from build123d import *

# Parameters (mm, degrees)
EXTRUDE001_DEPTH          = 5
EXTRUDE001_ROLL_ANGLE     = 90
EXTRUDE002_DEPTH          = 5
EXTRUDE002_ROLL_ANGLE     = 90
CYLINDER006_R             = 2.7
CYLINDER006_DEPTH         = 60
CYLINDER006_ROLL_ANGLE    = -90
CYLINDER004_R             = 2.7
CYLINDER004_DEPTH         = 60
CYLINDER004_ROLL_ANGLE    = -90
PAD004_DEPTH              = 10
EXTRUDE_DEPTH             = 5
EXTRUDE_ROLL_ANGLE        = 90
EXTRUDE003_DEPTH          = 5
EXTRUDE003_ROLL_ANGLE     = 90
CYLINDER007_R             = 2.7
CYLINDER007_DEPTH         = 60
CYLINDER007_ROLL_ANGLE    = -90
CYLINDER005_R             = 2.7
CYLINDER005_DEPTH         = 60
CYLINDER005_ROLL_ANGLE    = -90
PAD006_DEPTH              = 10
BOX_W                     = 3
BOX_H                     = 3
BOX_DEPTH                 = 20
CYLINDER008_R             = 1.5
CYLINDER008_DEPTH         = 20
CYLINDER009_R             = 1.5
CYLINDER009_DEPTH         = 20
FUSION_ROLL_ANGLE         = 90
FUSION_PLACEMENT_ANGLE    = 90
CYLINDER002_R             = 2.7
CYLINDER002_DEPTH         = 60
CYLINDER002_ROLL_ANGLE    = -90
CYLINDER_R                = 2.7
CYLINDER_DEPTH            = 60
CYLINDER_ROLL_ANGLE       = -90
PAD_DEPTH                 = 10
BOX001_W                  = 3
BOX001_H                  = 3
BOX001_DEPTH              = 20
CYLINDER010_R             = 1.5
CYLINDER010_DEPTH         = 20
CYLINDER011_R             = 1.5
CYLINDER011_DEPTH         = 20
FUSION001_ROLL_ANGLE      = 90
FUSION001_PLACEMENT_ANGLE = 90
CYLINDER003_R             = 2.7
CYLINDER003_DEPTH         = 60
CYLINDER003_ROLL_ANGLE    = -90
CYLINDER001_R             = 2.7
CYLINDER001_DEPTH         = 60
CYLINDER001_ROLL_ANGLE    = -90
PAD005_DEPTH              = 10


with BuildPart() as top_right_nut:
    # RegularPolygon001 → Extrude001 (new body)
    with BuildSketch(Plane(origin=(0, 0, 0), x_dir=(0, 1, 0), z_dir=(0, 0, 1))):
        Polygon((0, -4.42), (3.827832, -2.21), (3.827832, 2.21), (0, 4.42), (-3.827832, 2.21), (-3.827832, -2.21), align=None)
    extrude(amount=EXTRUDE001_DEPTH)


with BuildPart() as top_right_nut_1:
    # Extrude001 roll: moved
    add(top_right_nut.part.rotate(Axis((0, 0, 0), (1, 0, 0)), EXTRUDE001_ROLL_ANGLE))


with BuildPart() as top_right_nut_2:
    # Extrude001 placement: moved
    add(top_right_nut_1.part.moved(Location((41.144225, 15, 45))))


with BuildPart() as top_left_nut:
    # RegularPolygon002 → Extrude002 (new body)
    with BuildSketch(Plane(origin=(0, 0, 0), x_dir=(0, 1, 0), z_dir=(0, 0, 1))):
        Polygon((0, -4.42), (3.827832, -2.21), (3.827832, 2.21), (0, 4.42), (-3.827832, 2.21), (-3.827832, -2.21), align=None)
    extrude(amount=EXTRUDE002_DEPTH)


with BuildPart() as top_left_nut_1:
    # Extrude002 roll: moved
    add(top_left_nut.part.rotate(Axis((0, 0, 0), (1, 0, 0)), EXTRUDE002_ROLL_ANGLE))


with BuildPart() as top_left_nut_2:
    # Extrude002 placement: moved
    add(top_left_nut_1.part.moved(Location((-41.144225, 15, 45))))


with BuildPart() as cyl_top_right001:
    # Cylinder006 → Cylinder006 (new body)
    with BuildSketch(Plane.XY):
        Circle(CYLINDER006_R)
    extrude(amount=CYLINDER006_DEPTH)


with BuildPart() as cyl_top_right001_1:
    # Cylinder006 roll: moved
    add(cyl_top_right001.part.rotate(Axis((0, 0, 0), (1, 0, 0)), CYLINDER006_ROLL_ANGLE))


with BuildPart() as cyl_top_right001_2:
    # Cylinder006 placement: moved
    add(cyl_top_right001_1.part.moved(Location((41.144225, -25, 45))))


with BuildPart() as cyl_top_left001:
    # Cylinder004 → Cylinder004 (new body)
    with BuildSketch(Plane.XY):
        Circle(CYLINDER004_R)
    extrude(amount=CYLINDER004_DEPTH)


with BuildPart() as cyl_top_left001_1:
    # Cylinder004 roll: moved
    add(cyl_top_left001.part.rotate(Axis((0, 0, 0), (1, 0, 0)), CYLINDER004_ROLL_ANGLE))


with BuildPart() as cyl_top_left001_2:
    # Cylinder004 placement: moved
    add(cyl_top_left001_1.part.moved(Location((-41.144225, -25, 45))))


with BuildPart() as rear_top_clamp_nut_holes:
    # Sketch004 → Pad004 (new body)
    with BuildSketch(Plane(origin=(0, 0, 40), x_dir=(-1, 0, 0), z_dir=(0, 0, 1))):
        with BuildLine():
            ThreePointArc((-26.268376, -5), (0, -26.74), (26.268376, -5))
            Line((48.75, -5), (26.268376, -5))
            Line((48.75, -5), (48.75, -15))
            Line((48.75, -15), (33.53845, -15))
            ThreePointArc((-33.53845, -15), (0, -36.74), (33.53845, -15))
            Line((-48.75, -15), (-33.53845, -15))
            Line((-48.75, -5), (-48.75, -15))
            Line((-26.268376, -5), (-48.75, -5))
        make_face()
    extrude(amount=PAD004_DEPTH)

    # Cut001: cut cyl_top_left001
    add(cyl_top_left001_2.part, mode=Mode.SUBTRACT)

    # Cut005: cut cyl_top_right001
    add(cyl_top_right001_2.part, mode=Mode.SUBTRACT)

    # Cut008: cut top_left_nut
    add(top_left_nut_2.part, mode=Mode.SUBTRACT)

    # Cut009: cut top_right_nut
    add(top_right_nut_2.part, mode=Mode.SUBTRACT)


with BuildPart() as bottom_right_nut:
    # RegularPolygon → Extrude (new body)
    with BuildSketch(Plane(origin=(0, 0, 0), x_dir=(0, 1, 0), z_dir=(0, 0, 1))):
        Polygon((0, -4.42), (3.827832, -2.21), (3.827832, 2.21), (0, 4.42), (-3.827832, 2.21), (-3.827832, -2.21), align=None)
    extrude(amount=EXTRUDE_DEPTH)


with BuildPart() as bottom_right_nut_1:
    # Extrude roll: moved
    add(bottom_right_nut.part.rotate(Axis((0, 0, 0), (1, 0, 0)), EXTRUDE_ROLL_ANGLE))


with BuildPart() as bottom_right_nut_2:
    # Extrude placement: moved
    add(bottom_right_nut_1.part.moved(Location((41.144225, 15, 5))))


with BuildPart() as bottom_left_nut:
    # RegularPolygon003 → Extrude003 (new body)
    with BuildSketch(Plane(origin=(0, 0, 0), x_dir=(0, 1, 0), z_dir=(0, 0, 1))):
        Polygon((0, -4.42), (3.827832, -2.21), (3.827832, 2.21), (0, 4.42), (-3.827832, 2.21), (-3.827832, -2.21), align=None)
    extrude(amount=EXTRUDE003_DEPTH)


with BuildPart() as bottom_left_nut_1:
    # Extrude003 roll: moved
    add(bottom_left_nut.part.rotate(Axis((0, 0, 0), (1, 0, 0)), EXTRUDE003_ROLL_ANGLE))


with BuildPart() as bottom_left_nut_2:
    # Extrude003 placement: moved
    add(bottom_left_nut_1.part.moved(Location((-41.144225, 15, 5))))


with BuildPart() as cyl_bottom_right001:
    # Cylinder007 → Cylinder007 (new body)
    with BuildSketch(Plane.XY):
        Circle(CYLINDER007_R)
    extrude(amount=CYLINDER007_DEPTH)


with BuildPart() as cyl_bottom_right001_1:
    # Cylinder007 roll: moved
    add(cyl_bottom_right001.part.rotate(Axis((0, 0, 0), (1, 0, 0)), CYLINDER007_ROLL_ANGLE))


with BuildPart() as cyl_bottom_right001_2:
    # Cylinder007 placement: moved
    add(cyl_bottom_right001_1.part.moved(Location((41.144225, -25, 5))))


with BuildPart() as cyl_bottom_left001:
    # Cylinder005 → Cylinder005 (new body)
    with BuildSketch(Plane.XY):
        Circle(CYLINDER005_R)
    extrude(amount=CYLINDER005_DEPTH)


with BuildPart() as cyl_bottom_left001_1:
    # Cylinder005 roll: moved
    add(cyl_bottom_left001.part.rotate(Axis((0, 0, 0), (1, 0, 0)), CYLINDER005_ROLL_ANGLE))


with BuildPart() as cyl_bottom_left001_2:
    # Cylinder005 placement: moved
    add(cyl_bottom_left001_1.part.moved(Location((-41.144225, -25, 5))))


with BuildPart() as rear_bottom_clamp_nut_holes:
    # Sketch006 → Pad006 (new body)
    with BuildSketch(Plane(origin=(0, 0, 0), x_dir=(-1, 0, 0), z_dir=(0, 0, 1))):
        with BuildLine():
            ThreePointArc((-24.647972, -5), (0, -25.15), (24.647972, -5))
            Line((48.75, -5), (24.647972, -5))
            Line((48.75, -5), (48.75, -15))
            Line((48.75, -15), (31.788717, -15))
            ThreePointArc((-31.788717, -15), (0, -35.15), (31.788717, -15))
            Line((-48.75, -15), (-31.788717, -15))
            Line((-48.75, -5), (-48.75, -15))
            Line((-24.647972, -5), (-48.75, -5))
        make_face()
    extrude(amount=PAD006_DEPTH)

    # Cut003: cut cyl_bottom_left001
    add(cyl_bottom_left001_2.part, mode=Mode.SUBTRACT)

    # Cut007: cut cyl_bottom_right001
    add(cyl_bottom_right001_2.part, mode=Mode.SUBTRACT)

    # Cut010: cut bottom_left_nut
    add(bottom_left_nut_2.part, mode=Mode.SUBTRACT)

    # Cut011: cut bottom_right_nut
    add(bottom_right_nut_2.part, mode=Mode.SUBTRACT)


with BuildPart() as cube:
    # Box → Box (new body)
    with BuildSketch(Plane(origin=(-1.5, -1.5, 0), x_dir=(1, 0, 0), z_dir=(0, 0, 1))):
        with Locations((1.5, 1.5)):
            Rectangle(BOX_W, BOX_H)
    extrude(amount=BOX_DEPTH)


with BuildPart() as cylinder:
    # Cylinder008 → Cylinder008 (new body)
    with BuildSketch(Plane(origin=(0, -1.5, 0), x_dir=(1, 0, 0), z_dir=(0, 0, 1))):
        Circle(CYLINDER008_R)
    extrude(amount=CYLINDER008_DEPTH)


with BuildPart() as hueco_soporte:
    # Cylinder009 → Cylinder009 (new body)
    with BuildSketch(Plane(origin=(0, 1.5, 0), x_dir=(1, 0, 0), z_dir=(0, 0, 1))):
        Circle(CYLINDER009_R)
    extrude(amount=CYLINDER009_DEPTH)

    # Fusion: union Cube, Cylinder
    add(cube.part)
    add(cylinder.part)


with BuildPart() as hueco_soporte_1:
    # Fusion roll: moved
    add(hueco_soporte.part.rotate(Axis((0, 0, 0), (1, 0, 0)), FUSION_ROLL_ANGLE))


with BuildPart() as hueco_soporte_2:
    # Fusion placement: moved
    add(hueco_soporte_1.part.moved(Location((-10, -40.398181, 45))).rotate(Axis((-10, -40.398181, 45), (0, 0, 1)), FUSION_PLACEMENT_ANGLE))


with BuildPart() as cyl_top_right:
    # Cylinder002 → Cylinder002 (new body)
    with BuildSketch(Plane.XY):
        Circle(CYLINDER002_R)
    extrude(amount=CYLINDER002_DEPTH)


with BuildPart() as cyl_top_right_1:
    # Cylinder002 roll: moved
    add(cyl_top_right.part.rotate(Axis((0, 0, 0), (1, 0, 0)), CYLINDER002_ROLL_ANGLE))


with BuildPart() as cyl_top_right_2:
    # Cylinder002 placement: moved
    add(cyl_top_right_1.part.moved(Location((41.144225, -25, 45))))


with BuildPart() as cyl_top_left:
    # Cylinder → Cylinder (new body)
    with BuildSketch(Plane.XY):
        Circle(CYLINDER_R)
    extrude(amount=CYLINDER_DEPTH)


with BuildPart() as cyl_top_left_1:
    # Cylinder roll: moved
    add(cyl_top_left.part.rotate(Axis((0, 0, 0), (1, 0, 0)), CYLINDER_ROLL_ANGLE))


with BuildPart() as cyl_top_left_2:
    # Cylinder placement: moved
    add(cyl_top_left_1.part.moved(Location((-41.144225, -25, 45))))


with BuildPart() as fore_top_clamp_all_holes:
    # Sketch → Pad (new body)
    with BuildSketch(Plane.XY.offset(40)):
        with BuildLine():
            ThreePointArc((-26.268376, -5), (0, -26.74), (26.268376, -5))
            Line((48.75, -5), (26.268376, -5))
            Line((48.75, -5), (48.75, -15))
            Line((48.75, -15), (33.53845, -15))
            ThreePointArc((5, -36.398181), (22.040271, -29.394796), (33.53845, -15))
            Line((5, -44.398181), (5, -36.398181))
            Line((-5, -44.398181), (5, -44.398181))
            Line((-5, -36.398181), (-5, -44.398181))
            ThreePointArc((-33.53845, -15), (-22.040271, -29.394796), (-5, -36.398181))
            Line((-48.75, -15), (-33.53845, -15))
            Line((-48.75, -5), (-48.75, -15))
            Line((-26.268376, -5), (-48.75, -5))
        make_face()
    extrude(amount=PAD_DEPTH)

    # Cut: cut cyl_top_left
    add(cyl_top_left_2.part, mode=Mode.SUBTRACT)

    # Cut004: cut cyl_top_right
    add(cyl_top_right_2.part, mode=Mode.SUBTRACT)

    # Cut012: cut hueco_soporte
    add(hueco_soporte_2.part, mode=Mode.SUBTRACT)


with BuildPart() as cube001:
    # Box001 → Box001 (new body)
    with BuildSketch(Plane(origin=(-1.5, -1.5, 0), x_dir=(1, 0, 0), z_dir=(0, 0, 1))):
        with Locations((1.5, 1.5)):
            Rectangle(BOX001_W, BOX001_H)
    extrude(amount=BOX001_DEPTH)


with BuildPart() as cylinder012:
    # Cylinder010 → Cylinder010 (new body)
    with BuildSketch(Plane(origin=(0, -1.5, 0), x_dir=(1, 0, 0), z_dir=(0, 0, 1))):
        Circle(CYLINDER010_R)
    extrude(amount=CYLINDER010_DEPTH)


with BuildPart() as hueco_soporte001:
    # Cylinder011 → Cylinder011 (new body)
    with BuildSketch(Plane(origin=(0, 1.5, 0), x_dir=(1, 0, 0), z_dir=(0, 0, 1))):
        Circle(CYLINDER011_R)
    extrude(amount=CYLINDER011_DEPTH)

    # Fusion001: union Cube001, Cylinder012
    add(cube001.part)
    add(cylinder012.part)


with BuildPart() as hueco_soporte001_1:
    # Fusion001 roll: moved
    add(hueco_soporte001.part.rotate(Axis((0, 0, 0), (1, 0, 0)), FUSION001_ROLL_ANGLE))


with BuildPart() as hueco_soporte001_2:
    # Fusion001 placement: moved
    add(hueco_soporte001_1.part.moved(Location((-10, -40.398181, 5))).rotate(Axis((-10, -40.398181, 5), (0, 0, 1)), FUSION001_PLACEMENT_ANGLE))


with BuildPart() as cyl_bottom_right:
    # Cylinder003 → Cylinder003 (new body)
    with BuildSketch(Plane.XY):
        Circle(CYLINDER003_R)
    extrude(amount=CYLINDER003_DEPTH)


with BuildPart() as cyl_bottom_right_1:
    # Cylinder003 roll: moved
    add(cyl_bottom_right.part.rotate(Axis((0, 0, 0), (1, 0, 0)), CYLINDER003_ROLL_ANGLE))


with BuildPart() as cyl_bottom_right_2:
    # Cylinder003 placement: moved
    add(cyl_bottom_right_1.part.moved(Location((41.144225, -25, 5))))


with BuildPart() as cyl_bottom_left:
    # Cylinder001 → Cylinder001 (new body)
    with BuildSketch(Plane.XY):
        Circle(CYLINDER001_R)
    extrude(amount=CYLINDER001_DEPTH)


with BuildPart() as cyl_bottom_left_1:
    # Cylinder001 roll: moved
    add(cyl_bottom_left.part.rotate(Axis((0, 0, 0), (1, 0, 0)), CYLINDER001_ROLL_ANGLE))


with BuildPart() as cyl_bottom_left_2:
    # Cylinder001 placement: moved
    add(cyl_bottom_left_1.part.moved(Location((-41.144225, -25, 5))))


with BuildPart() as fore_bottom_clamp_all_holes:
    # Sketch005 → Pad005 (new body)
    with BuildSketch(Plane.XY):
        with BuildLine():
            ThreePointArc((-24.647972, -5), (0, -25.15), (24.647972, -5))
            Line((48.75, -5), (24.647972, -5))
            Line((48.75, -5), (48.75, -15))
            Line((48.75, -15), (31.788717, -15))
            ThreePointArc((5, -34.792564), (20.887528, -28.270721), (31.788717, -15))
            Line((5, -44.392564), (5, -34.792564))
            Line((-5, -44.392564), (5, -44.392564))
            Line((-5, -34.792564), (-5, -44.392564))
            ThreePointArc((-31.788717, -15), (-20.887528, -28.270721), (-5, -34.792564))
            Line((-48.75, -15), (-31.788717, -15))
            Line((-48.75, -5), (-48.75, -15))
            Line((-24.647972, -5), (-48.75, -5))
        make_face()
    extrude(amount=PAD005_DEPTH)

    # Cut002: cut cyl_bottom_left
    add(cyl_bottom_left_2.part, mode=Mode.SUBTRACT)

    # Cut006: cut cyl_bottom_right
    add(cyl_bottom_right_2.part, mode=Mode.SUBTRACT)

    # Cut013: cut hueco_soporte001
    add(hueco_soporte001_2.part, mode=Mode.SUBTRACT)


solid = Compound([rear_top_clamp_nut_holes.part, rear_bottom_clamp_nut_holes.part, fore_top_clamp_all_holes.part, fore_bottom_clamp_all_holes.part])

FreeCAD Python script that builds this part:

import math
import FreeCAD as App
import Part
import Sketcher

V = App.Vector
Q = App.Units.Quantity


def add_polygon(sketch, points):
    """Adds a closed chain of lines whose ends are joined by coincident constraints."""
    first, n = sketch.GeometryCount, len(points)
    for a, b in zip(points, points[1:] + points[:1]):
        sketch.addGeometry(Part.LineSegment(App.Vector(*a, 0), App.Vector(*b, 0)), False)
    for i in range(n):
        sketch.addConstraint(Sketcher.Constraint("Coincident", first + i, 2, first + (i + 1) % n, 1))

doc = App.newDocument("Part")
body = doc.addObject("PartDesign::Body", "Body")

# Sketch on XY plane
sketch1 = body.newObject("Sketcher::SketchObject", "Sketch")
sketch1.AttachmentSupport = (doc.getObject("XY_Plane"), [""])
sketch1.MapMode = "FlatFace"
add_polygon(sketch1, [(4.42, 0), (2.21, 3.827832), (-2.21, 3.827832), (-4.42, 0), (-2.21, -3.827832), (2.21, -3.827832)])  # lines 0-5
sketch1.addConstraint([
    Sketcher.Constraint("Horizontal", 1),
    Sketcher.Constraint("Horizontal", 4),
    Sketcher.Constraint("Symmetric", 0, 2, 3, 2, -1, 1),
    Sketcher.Constraint("Symmetric", 2, 2, 5, 2, -1, 1),
    Sketcher.Constraint("PointOnObject", 2, 2, -1),
    Sketcher.Constraint("Parallel", 2, 5),
    Sketcher.Constraint("Vertical", 1, 2, 3, 2),
    Sketcher.Constraint("Angle", 0, Q("120.000002 deg")),
    Sketcher.Constraint("DistanceX", 1, 2, 1, 1, Q("4.42 mm")),
    Sketcher.Constraint("Distance", 0, Q("4.42 mm")),
])
pad1 = body.newObject("PartDesign::Pad", "Pad")
pad1.Profile = sketch1
pad1.Length = 5
body2 = doc.addObject("PartDesign::Body", "Body001")
doc.recompute()

body.Placement = App.Placement(V(0, 0, 0), App.Rotation(V(1, 0, 0), 90))
boolean = body2.newObject("PartDesign::Boolean", "Boolean")
boolean.Type = "Fuse"
boolean.addObjects([body])
body3 = doc.addObject("PartDesign::Body", "Body002")
doc.recompute()

body2.Placement = App.Placement(V(41.144225, 15, 45), App.Rotation(V(0, 0, 1), 0))
boolean2 = body3.newObject("PartDesign::Boolean", "Boolean001")
boolean2.Type = "Fuse"
boolean2.addObjects([body2])
body4 = doc.addObject("PartDesign::Body", "Body003")

# Sketch on XY plane
sketch2 = body4.newObject("Sketcher::SketchObject", "Sketch001")
sketch2.AttachmentSupport = (doc.getObject("XY_Plane003"), [""])
sketch2.MapMode = "FlatFace"
add_polygon(sketch2, [(4.42, 0), (2.21, 3.827832), (-2.21, 3.827832), (-4.42, 0), (-2.21, -3.827832), (2.21, -3.827832)])  # lines 0-5
sketch2.addConstraint([
    Sketcher.Constraint("Horizontal", 1),
    Sketcher.Constraint("Horizontal", 4),
    Sketcher.Constraint("Symmetric", 0, 2, 3, 2, -1, 1),
    Sketcher.Constraint("Symmetric", 2, 2, 5, 2, -1, 1),
    Sketcher.Constraint("PointOnObject", 2, 2, -1),
    Sketcher.Constraint("Parallel", 2, 5),
    Sketcher.Constraint("Vertical", 1, 2, 3, 2),
    Sketcher.Constraint("Angle", 0, Q("120.000002 deg")),
    Sketcher.Constraint("DistanceX", 1, 2, 1, 1, Q("4.42 mm")),
    Sketcher.Constraint("Distance", 0, Q("4.42 mm")),
])
pad2 = body4.newObject("PartDesign::Pad", "Pad001")
pad2.Profile = sketch2
pad2.Length = 5
body5 = doc.addObject("PartDesign::Body", "Body004")
doc.recompute()

body4.Placement = App.Placement(V(0, 0, 0), App.Rotation(V(1, 0, 0), 90))
boolean3 = body5.newObject("PartDesign::Boolean", "Boolean002")
boolean3.Type = "Fuse"
boolean3.addObjects([body4])
body6 = doc.addObject("PartDesign::Body", "Body005")
doc.recompute()

body5.Placement = App.Placement(V(-41.144225, 15, 45), App.Rotation(V(0, 0, 1), 0))
boolean4 = body6.newObject("PartDesign::Boolean", "Boolean003")
boolean4.Type = "Fuse"
boolean4.addObjects([body5])
body7 = doc.addObject("PartDesign::Body", "Body006")

# Sketch on XY plane
sketch3 = body7.newObject("Sketcher::SketchObject", "Sketch002")
sketch3.AttachmentSupport = (doc.getObject("XY_Plane006"), [""])
sketch3.MapMode = "FlatFace"
sketch3.addGeometry(Part.Circle(V(0, 0, 0), V(0, 0, 1), 2.7), False)
sketch3.addConstraint([
    Sketcher.Constraint("Coincident", 0, 3, -1, 1),
    Sketcher.Constraint("Diameter", 0, Q("5.4 mm")),
])
pad3 = body7.newObject("PartDesign::Pad", "Pad002")
pad3.Profile = sketch3
pad3.Length = 60
body8 = doc.addObject("PartDesign::Body", "Body007")
doc.recompute()

body7.Placement = App.Placement(V(0, 0, 0), App.Rotation(V(1, 0, 0), 270))
boolean5 = body8.newObject("PartDesign::Boolean", "Boolean004")
boolean5.Type = "Fuse"
boolean5.addObjects([body7])
body9 = doc.addObject("PartDesign::Body", "Body008")
doc.recompute()

body8.Placement = App.Placement(V(41.144225, -25, 45), App.Rotation(V(0, 0, 1), 0))
boolean6 = body9.newObject("PartDesign::Boolean", "Boolean005")
boolean6.Type = "Fuse"
boolean6.addObjects([body8])
body10 = doc.addObject("PartDesign::Body", "Body009")

# Sketch on XY plane
sketch4 = body10.newObject("Sketcher::SketchObject", "Sketch003")
sketch4.AttachmentSupport = (doc.getObject("XY_Plane009"), [""])
sketch4.MapMode = "FlatFace"
sketch4.addGeometry(Part.Circle(V(0, 0, 0), V(0, 0, 1), 2.7), False)
sketch4.addConstraint([
    Sketcher.Constraint("Coincident", 0, 3, -1, 1),
    Sketcher.Constraint("Diameter", 0, Q("5.4 mm")),
])
pad4 = body10.newObject("PartDesign::Pad", "Pad003")
pad4.Profile = sketch4
pad4.Length = 60
body11 = doc.addObject("PartDesign::Body", "Body010")
doc.recompute()

body10.Placement = App.Placement(V(0, 0, 0), App.Rotation(V(1, 0, 0), 270))
boolean7 = body11.newObject("PartDesign::Boolean", "Boolean006")
boolean7.Type = "Fuse"
boolean7.addObjects([body10])
body12 = doc.addObject("PartDesign::Body", "Body011")
doc.recompute()

body11.Placement = App.Placement(V(-41.144225, -25, 45), App.Rotation(V(0, 0, 1), 0))
boolean8 = body12.newObject("PartDesign::Boolean", "Boolean007")
boolean8.Type = "Fuse"
boolean8.addObjects([body11])
body13 = doc.addObject("PartDesign::Body", "Body012")

# Sketch on XY plane
sketch5 = body13.newObject("Sketcher::SketchObject", "Sketch004")
sketch5.AttachmentSupport = (doc.getObject("XY_Plane012"), [""])
sketch5.MapMode = "FlatFace"
sketch5.AttachmentOffset = App.Placement(V(0, 0, 40), App.Rotation())
sketch5.addGeometry([
    Part.ArcOfCircle(Part.Circle(V(0, 0.000001, 0), V(0, 0, 1), 26.739999), math.radians(10.776929), math.radians(169.223071)),  # 0
    Part.LineSegment(V(26.268376, 5, 0), V(48.75, 5, 0)),  # 1
    Part.LineSegment(V(48.75, 5, 0), V(48.75, 15, 0)),  # 2
    Part.LineSegment(V(48.75, 15, 0), V(33.53845, 15, 0)),  # 3
    Part.ArcOfCircle(Part.Circle(V(0, -0.000001, 0), V(0, 0, 1), 36.740001), math.radians(24.096479), math.radians(155.903521)),  # 4
    Part.LineSegment(V(-33.53845, 15, 0), V(-48.75, 15, 0)),  # 5
    Part.LineSegment(V(-48.75, 15, 0), V(-48.75, 5, 0)),  # 6
    Part.LineSegment(V(-48.75, 5, 0), V(-26.268376, 5, 0)),  # 7
], False)
sketch5.addConstraint([
    Sketcher.Constraint("Coincident", 0, 1, 1, 1),
    Sketcher.Constraint("Coincident", 1, 2, 2, 1),
    Sketcher.Constraint("Coincident", 2, 2, 3, 1),
    Sketcher.Constraint("Coincident", 3, 2, 4, 1),
    Sketcher.Constraint("Coincident", 4, 2, 5, 1),
    Sketcher.Constraint("Coincident", 5, 2, 6, 1),
    Sketcher.Constraint("Coincident", 6, 2, 7, 1),
    Sketcher.Constraint("Coincident", 7, 2, 0, 2),
    Sketcher.Constraint("Horizontal", 1),
    Sketcher.Constraint("Vertical", 2),
    Sketcher.Constraint("Horizontal", 3),
    Sketcher.Constraint("Horizontal", 5),
    Sketcher.Constraint("Vertical", 6),
    Sketcher.Constraint("Horizontal", 7),
    Sketcher.Constraint("Coincident", 0, 3, -1, 1),
    Sketcher.Constraint("Coincident", 4, 3, -1, 1),
    Sketcher.Constraint("Symmetric", 2, 2, 5, 2, -2),
    Sketcher.Constraint("Horizontal", 1, 2, 6, 2),
    Sketcher.Constraint("DistanceY", 2, 1, 2, 2, Q("10 mm")),
    Sketcher.Constraint("Radius", 0, Q("26.739999 mm")),
    Sketcher.Constraint("Radius", 4, Q("36.740001 mm")),
    Sketcher.Constraint("DistanceY", -1, 1, 0, 1, Q("5 mm")),
    Sketcher.Constraint("DistanceX", -1, 1, 1, 2, Q("48.75 mm")),
])
pad5 = body13.newObject("PartDesign::Pad", "Pad004")
pad5.Profile = sketch5
pad5.Length = 10
doc.recompute()

boolean9 = body13.newObject("PartDesign::Boolean", "Boolean008")
boolean9.Type = "Cut"
boolean9.addObjects([body12])
doc.recompute()

boolean10 = body13.newObject("PartDesign::Boolean", "Boolean009")
boolean10.Type = "Cut"
boolean10.addObjects([body9])
doc.recompute()

boolean11 = body13.newObject("PartDesign::Boolean", "Boolean010")
boolean11.Type = "Cut"
boolean11.addObjects([body6])
doc.recompute()

boolean12 = body13.newObject("PartDesign::Boolean", "Boolean011")
boolean12.Type = "Cut"
boolean12.addObjects([body3])
body14 = doc.addObject("PartDesign::Body", "Body013")

# Sketch on XY plane
sketch6 = body14.newObject("Sketcher::SketchObject", "Sketch005")
sketch6.AttachmentSupport = (doc.getObject("XY_Plane013"), [""])
sketch6.MapMode = "FlatFace"
add_polygon(sketch6, [(4.42, 0), (2.21, 3.827832), (-2.21, 3.827832), (-4.42, 0), (-2.21, -3.827832), (2.21, -3.827832)])  # lines 0-5
sketch6.addConstraint([
    Sketcher.Constraint("Horizontal", 1),
    Sketcher.Constraint("Horizontal", 4),
    Sketcher.Constraint("Symmetric", 0, 2, 3, 2, -1, 1),
    Sketcher.Constraint("Symmetric", 2, 2, 5, 2, -1, 1),
    Sketcher.Constraint("PointOnObject", 2, 2, -1),
    Sketcher.Constraint("Parallel", 2, 5),
    Sketcher.Constraint("Vertical", 1, 2, 3, 2),
    Sketcher.Constraint("Angle", 0, Q("120.000002 deg")),
    Sketcher.Constraint("DistanceX", 1, 2, 1, 1, Q("4.42 mm")),
    Sketcher.Constraint("Distance", 0, Q("4.42 mm")),
])
pad6 = body14.newObject("PartDesign::Pad", "Pad005")
pad6.Profile = sketch6
pad6.Length = 5
body15 = doc.addObject("PartDesign::Body", "Body014")
doc.recompute()

body14.Placement = App.Placement(V(0, 0, 0), App.Rotation(V(1, 0, 0), 90))
boolean13 = body15.newObject("PartDesign::Boolean", "Boolean012")
boolean13.Type = "Fuse"
boolean13.addObjects([body14])
body16 = doc.addObject("PartDesign::Body", "Body015")
doc.recompute()

body15.Placement = App.Placement(V(41.144225, 15, 5), App.Rotation(V(0, 0, 1), 0))
boolean14 = body16.newObject("PartDesign::Boolean", "Boolean013")
boolean14.Type = "Fuse"
boolean14.addObjects([body15])
body17 = doc.addObject("PartDesign::Body", "Body016")

# Sketch on XY plane
sketch7 = body17.newObject("Sketcher::SketchObject", "Sketch006")
sketch7.AttachmentSupport = (doc.getObject("XY_Plane016"), [""])
sketch7.MapMode = "FlatFace"
add_polygon(sketch7, [(4.42, 0), (2.21, 3.827832), (-2.21, 3.827832), (-4.42, 0), (-2.21, -3.827832), (2.21, -3.827832)])  # lines 0-5
sketch7.addConstraint([
    Sketcher.Constraint("Horizontal", 1),
    Sketcher.Constraint("Horizontal", 4),
    Sketcher.Constraint("Symmetric", 0, 2, 3, 2, -1, 1),
    Sketcher.Constraint("Symmetric", 2, 2, 5, 2, -1, 1),
    Sketcher.Constraint("PointOnObject", 2, 2, -1),
    Sketcher.Constraint("Parallel", 2, 5),
    Sketcher.Constraint("Vertical", 1, 2, 3, 2),
    Sketcher.Constraint("Angle", 0, Q("120.000002 deg")),
    Sketcher.Constraint("DistanceX", 1, 2, 1, 1, Q("4.42 mm")),
    Sketcher.Constraint("Distance", 0, Q("4.42 mm")),
])
pad7 = body17.newObject("PartDesign::Pad", "Pad006")
pad7.Profile = sketch7
pad7.Length = 5
body18 = doc.addObject("PartDesign::Body", "Body017")
doc.recompute()

body17.Placement = App.Placement(V(0, 0, 0), App.Rotation(V(1, 0, 0), 90))
boolean15 = body18.newObject("PartDesign::Boolean", "Boolean014")
boolean15.Type = "Fuse"
boolean15.addObjects([body17])
body19 = doc.addObject("PartDesign::Body", "Body018")
doc.recompute()

body18.Placement = App.Placement(V(-41.144225, 15, 5), App.Rotation(V(0, 0, 1), 0))
boolean16 = body19.newObject("PartDesign::Boolean", "Boolean015")
boolean16.Type = "Fuse"
boolean16.addObjects([body18])
body20 = doc.addObject("PartDesign::Body", "Body019")

# Sketch on XY plane
sketch8 = body20.newObject("Sketcher::SketchObject", "Sketch007")
sketch8.AttachmentSupport = (doc.getObject("XY_Plane019"), [""])
sketch8.MapMode = "FlatFace"
sketch8.addGeometry(Part.Circle(V(0, 0, 0), V(0, 0, 1), 2.7), False)
sketch8.addConstraint([
    Sketcher.Constraint("Coincident", 0, 3, -1, 1),
    Sketcher.Constraint("Diameter", 0, Q("5.4 mm")),
])
pad8 = body20.newObject("PartDesign::Pad", "Pad007")
pad8.Profile = sketch8
pad8.Length = 60
body21 = doc.addObject("PartDesign::Body", "Body020")
doc.recompute()

body20.Placement = App.Placement(V(0, 0, 0), App.Rotation(V(1, 0, 0), 270))
boolean17 = body21.newObject("PartDesign::Boolean", "Boolean016")
boolean17.Type = "Fuse"
boolean17.addObjects([body20])
body22 = doc.addObject("PartDesign::Body", "Body021")
doc.recompute()

body21.Placement = App.Placement(V(41.144225, -25, 5), App.Rotation(V(0, 0, 1), 0))
boolean18 = body22.newObject("PartDesign::Boolean", "Boolean017")
boolean18.Type = "Fuse"
boolean18.addObjects([body21])
body23 = doc.addObject("PartDesign::Body", "Body022")

# Sketch on XY plane
sketch9 = body23.newObject("Sketcher::SketchObject", "Sketch008")
sketch9.AttachmentSupport = (doc.getObject("XY_Plane022"), [""])
sketch9.MapMode = "FlatFace"
sketch9.addGeometry(Part.Circle(V(0, 0, 0), V(0, 0, 1), 2.7), False)
sketch9.addConstraint([
    Sketcher.Constraint("Coincident", 0, 3, -1, 1),
    Sketcher.Constraint("Diameter", 0, Q("5.4 mm")),
])
pad9 = body23.newObject("PartDesign::Pad", "Pad008")
pad9.Profile = sketch9
pad9.Length = 60
body24 = doc.addObject("PartDesign::Body", "Body023")
doc.recompute()

body23.Placement = App.Placement(V(0, 0, 0), App.Rotation(V(1, 0, 0), 270))
boolean19 = body24.newObject("PartDesign::Boolean", "Boolean018")
boolean19.Type = "Fuse"
boolean19.addObjects([body23])
body25 = doc.addObject("PartDesign::Body", "Body024")
doc.recompute()

body24.Placement = App.Placement(V(-41.144225, -25, 5), App.Rotation(V(0, 0, 1), 0))
boolean20 = body25.newObject("PartDesign::Boolean", "Boolean019")
boolean20.Type = "Fuse"
boolean20.addObjects([body24])
body26 = doc.addObject("PartDesign::Body", "Body025")

# Sketch on XY plane
sketch10 = body26.newObject("Sketcher::SketchObject", "Sketch009")
sketch10.AttachmentSupport = (doc.getObject("XY_Plane025"), [""])
sketch10.MapMode = "FlatFace"
sketch10.addGeometry([
    Part.ArcOfCircle(Part.Circle(V(0, -0.000001, 0), V(0, 0, 1), 25.150001), math.radians(11.467215), math.radians(168.532785)),  # 0
    Part.LineSegment(V(24.647972, 5, 0), V(48.75, 5, 0)),  # 1
    Part.LineSegment(V(48.75, 5, 0), V(48.75, 15, 0)),  # 2
    Part.LineSegment(V(48.75, 15, 0), V(31.788717, 15, 0)),  # 3
    Part.ArcOfCircle(Part.Circle(V(0, -0.000001, 0), V(0, 0, 1), 35.150001), math.radians(25.261011), math.radians(154.738989)),  # 4
    Part.LineSegment(V(-31.788717, 15, 0), V(-48.75, 15, 0)),  # 5
    Part.LineSegment(V(-48.75, 15, 0), V(-48.75, 5, 0)),  # 6
    Part.LineSegment(V(-48.75, 5, 0), V(-24.647972, 5, 0)),  # 7
], False)
sketch10.addConstraint([
    Sketcher.Constraint("Coincident", 0, 1, 1, 1),
    Sketcher.Constraint("Coincident", 1, 2, 2, 1),
    Sketcher.Constraint("Coincident", 2, 2, 3, 1),
    Sketcher.Constraint("Coincident", 3, 2, 4, 1),
    Sketcher.Constraint("Coincident", 4, 2, 5, 1),
    Sketcher.Constraint("Coincident", 5, 2, 6, 1),
    Sketcher.Constraint("Coincident", 6, 2, 7, 1),
    Sketcher.Constraint("Coincident", 7, 2, 0, 2),
    Sketcher.Constraint("Horizontal", 1),
    Sketcher.Constraint("Vertical", 2),
    Sketcher.Constraint("Horizontal", 3),
    Sketcher.Constraint("Horizontal", 5),
    Sketcher.Constraint("Vertical", 6),
    Sketcher.Constraint("Horizontal", 7),
    Sketcher.Constraint("Coincident", 0, 3, -1, 1),
    Sketcher.Constraint("Coincident", 4, 3, -1, 1),
    Sketcher.Constraint("Symmetric", 2, 2, 5, 2, -2),
    Sketcher.Constraint("Horizontal", 1, 2, 6, 2),
    Sketcher.Constraint("DistanceY", 2, 1, 2, 2, Q("10 mm")),
    Sketcher.Constraint("Radius", 0, Q("25.150001 mm")),
    Sketcher.Constraint("Radius", 4, Q("35.150001 mm")),
    Sketcher.Constraint("DistanceY", -1, 1, 0, 1, Q("5 mm")),
    Sketcher.Constraint("DistanceX", -1, 1, 1, 2, Q("48.75 mm")),
])
pad10 = body26.newObject("PartDesign::Pad", "Pad009")
pad10.Profile = sketch10
pad10.Length = 10
doc.recompute()

boolean21 = body26.newObject("PartDesign::Boolean", "Boolean020")
boolean21.Type = "Cut"
boolean21.addObjects([body25])
doc.recompute()

boolean22 = body26.newObject("PartDesign::Boolean", "Boolean021")
boolean22.Type = "Cut"
boolean22.addObjects([body22])
doc.recompute()

boolean23 = body26.newObject("PartDesign::Boolean", "Boolean022")
boolean23.Type = "Cut"
boolean23.addObjects([body19])
doc.recompute()

boolean24 = body26.newObject("PartDesign::Boolean", "Boolean023")
boolean24.Type = "Cut"
boolean24.addObjects([body16])
body27 = doc.addObject("PartDesign::Body", "Body026")

# Sketch on XY plane
sketch11 = body27.newObject("Sketcher::SketchObject", "Sketch010")
sketch11.AttachmentSupport = (doc.getObject("XY_Plane026"), [""])
sketch11.MapMode = "FlatFace"
add_polygon(sketch11, [(-1.5, 1.5), (-1.5, -1.5), (1.5, -1.5), (1.5, 1.5)])  # lines 0-3
sketch11.addConstraint([
    Sketcher.Constraint("Vertical", 0),
    Sketcher.Constraint("Horizontal", 1),
    Sketcher.Constraint("Vertical", 2),
    Sketcher.Constraint("Horizontal", 3),
    Sketcher.Constraint("Symmetric", 0, 2, 2, 2, -1, 1),
    Sketcher.Constraint("Equal", 3, 0),
    Sketcher.Constraint("DistanceX", 1, 1, 1, 2, Q("3 mm")),
])
pad11 = body27.newObject("PartDesign::Pad", "Pad010")
pad11.Profile = sketch11
pad11.Length = 20
body28 = doc.addObject("PartDesign::Body", "Body027")

# Sketch on XY plane
sketch12 = body28.newObject("Sketcher::SketchObject", "Sketch011")
sketch12.AttachmentSupport = (doc.getObject("XY_Plane027"), [""])
sketch12.MapMode = "FlatFace"
sketch12.addGeometry(Part.Circle(V(0, -1.5, 0), V(0, 0, 1), 1.5), False)
sketch12.addConstraint([
    Sketcher.Constraint("PointOnObject", 0, 3, -2),
    Sketcher.Constraint("Diameter", 0, Q("3 mm")),
    Sketcher.Constraint("DistanceY", 0, 3, -1, 1, Q("1.5 mm")),
])
pad12 = body28.newObject("PartDesign::Pad", "Pad011")
pad12.Profile = sketch12
pad12.Length = 20
body29 = doc.addObject("PartDesign::Body", "Body028")

# Sketch on XY plane
sketch13 = body29.newObject("Sketcher::SketchObject", "Sketch012")
sketch13.AttachmentSupport = (doc.getObject("XY_Plane028"), [""])
sketch13.MapMode = "FlatFace"
sketch13.addGeometry(Part.Circle(V(0, 1.5, 0), V(0, 0, 1), 1.5), False)
sketch13.addConstraint([
    Sketcher.Constraint("PointOnObject", 0, 3, -2),
    Sketcher.Constraint("Diameter", 0, Q("3 mm")),
    Sketcher.Constraint("DistanceY", -1, 1, 0, 3, Q("1.5 mm")),
])
pad13 = body29.newObject("PartDesign::Pad", "Pad012")
pad13.Profile = sketch13
pad13.Length = 20
doc.recompute()

boolean25 = body29.newObject("PartDesign::Boolean", "Boolean024")
boolean25.Type = "Fuse"
boolean25.addObjects([body27])
doc.recompute()

boolean26 = body29.newObject("PartDesign::Boolean", "Boolean025")
boolean26.Type = "Fuse"
boolean26.addObjects([body28])
body30 = doc.addObject("PartDesign::Body", "Body029")
doc.recompute()

body29.Placement = App.Placement(V(0, 0, 0), App.Rotation(V(1, 0, 0), 90))
boolean27 = body30.newObject("PartDesign::Boolean", "Boolean026")
boolean27.Type = "Fuse"
boolean27.addObjects([body29])
body31 = doc.addObject("PartDesign::Body", "Body030")
doc.recompute()

body30.Placement = App.Placement(V(-10, -40.398181, 45), App.Rotation(V(0, 0, 1), 90))
boolean28 = body31.newObject("PartDesign::Boolean", "Boolean027")
boolean28.Type = "Fuse"
boolean28.addObjects([body30])
body32 = doc.addObject("PartDesign::Body", "Body031")

# Sketch on XY plane
sketch14 = body32.newObject("Sketcher::SketchObject", "Sketch013")
sketch14.AttachmentSupport = (doc.getObject("XY_Plane031"), [""])
sketch14.MapMode = "FlatFace"
sketch14.addGeometry(Part.Circle(V(0, 0, 0), V(0, 0, 1), 2.7), False)
sketch14.addConstraint([
    Sketcher.Constraint("Coincident", 0, 3, -1, 1),
    Sketcher.Constraint("Diameter", 0, Q("5.4 mm")),
])
pad14 = body32.newObject("PartDesign::Pad", "Pad013")
pad14.Profile = sketch14
pad14.Length = 60
body33 = doc.addObject("PartDesign::Body", "Body032")
doc.recompute()

body32.Placement = App.Placement(V(0, 0, 0), App.Rotation(V(1, 0, 0), 270))
boolean29 = body33.newObject("PartDesign::Boolean", "Boolean028")
boolean29.Type = "Fuse"
boolean29.addObjects([body32])
body34 = doc.addObject("PartDesign::Body", "Body033")
doc.recompute()

body33.Placement = App.Placement(V(41.144225, -25, 45), App.Rotation(V(0, 0, 1), 0))
boolean30 = body34.newObject("PartDesign::Boolean", "Boolean029")
boolean30.Type = "Fuse"
boolean30.addObjects([body33])
body35 = doc.addObject("PartDesign::Body", "Body034")

# Sketch on XY plane
sketch15 = body35.newObject("Sketcher::SketchObject", "Sketch014")
sketch15.AttachmentSupport = (doc.getObject("XY_Plane034"), [""])
sketch15.MapMode = "FlatFace"
sketch15.addGeometry(Part.Circle(V(0, 0, 0), V(0, 0, 1), 2.7), False)
sketch15.addConstraint([
    Sketcher.Constraint("Coincident", 0, 3, -1, 1),
    Sketcher.Constraint("Diameter", 0, Q("5.4 mm")),
])
pad15 = body35.newObject("PartDesign::Pad", "Pad014")
pad15.Profile = sketch15
pad15.Length = 60
body36 = doc.addObject("PartDesign::Body", "Body035")
doc.recompute()

body35.Placement = App.Placement(V(0, 0, 0), App.Rotation(V(1, 0, 0), 270))
boolean31 = body36.newObject("PartDesign::Boolean", "Boolean030")
boolean31.Type = "Fuse"
boolean31.addObjects([body35])
body37 = doc.addObject("PartDesign::Body", "Body036")
doc.recompute()

body36.Placement = App.Placement(V(-41.144225, -25, 45), App.Rotation(V(0, 0, 1), 0))
boolean32 = body37.newObject("PartDesign::Boolean", "Boolean031")
boolean32.Type = "Fuse"
boolean32.addObjects([body36])
body38 = doc.addObject("PartDesign::Body", "Body037")

# Sketch on XY plane
sketch16 = body38.newObject("Sketcher::SketchObject", "Sketch015")
sketch16.AttachmentSupport = (doc.getObject("XY_Plane037"), [""])
sketch16.MapMode = "FlatFace"
sketch16.AttachmentOffset = App.Placement(V(0, 0, 40), App.Rotation())
sketch16.addGeometry([
    Part.ArcOfCircle(Part.Circle(V(0, -0.000001, 0), V(0, 0, 1), 26.739999), math.radians(-169.223071), math.radians(-10.776929)),  # 0
    Part.LineSegment(V(-26.268376, -5, 0), V(-48.75, -5, 0)),  # 1
    Part.LineSegment(V(-48.75, -5, 0), V(-48.75, -15, 0)),  # 2
    Part.LineSegment(V(-48.75, -15, 0), V(-33.53845, -15, 0)),  # 3
    Part.ArcOfCircle(Part.Circle(V(0.000001, 0.000003, 0), V(0, 0, 1), 36.740003), math.radians(-155.903518), math.radians(-97.821739)),  # 4
    Part.LineSegment(V(-5, -36.398181, 0), V(-5, -44.398181, 0)),  # 5
    Part.LineSegment(V(-5, -44.398181, 0), V(5, -44.398181, 0)),  # 6
    Part.LineSegment(V(5, -44.398181, 0), V(5, -36.398181, 0)),  # 7
    Part.ArcOfCircle(Part.Circle(V(-0.000001, 0.000003, 0), V(0, 0, 1), 36.740003), math.radians(-82.178261), math.radians(-24.096482)),  # 8
    Part.LineSegment(V(33.53845, -15, 0), V(48.75, -15, 0)),  # 9
    Part.LineSegment(V(48.75, -15, 0), V(48.75, -5, 0)),  # 10
    Part.LineSegment(V(48.75, -5, 0), V(26.268376, -5, 0)),  # 11
], False)
sketch16.addConstraint([
    Sketcher.Constraint("Coincident", 0, 1, 1, 1),
    Sketcher.Constraint("Coincident", 1, 2, 2, 1),
    Sketcher.Constraint("Coincident", 2, 2, 3, 1),
    Sketcher.Constraint("Coincident", 3, 2, 4, 1),
    Sketcher.Constraint("Coincident", 4, 2, 5, 1),
    Sketcher.Constraint("Coincident", 5, 2, 6, 1),
    Sketcher.Constraint("Coincident", 6, 2, 7, 1),
    Sketcher.Constraint("Coincident", 7, 2, 8, 1),
    Sketcher.Constraint("Coincident", 8, 2, 9, 1),
    Sketcher.Constraint("Coincident", 9, 2, 10, 1),
    Sketcher.Constraint("Coincident", 10, 2, 11, 1),
    Sketcher.Constraint("Coincident", 11, 2, 0, 2),
    Sketcher.Constraint("Horizontal", 1),
    Sketcher.Constraint("Vertical", 2),
    Sketcher.Constraint("Horizontal", 3),
    Sketcher.Constraint("Vertical", 5),
    Sketcher.Constraint("Horizontal", 6),
    Sketcher.Constraint("Vertical", 7),
    Sketcher.Constraint("Horizontal", 9),
    Sketcher.Constraint("Vertical", 10),
    Sketcher.Constraint("Horizontal", 11),
    Sketcher.Constraint("Coincident", 0, 3, -1, 1),
    Sketcher.Constraint("Coincident", 4, 3, -1, 1),
    Sketcher.Constraint("Coincident", 8, 3, -1, 1),
    Sketcher.Constraint("Equal", 4, 8),
    Sketcher.Constraint("Symmetric", 2, 2, 9, 2, -2),
    Sketcher.Constraint("Horizontal", 4, 2, 7, 2),
    Sketcher.Constraint("Horizontal", 1, 2, 10, 2),
    Sketcher.Constraint("Equal", 6, 2),
    Sketcher.Constraint("DistanceX", 6, 1, 6, 2, Q("10 mm")),
    Sketcher.Constraint("DistanceY", 5, 2, 5, 1, Q("8 mm")),
    Sketcher.Constraint("Radius", 0, Q("26.739999 mm")),
    Sketcher.Constraint("DistanceY", 0, 1, -1, 1, Q("5 mm")),
    Sketcher.Constraint("DistanceX", 1, 2, -1, 1, Q("48.75 mm")),
    Sketcher.Constraint("Radius", 4, Q("36.740003 mm")),
])
pad16 = body38.newObject("PartDesign::Pad", "Pad015")
pad16.Profile = sketch16
pad16.Length = 10
doc.recompute()

boolean33 = body38.newObject("PartDesign::Boolean", "Boolean032")
boolean33.Type = "Cut"
boolean33.addObjects([body37])
doc.recompute()

boolean34 = body38.newObject("PartDesign::Boolean", "Boolean033")
boolean34.Type = "Cut"
boolean34.addObjects([body34])
doc.recompute()

boolean35 = body38.newObject("PartDesign::Boolean", "Boolean034")
boolean35.Type = "Cut"
boolean35.addObjects([body31])
body39 = doc.addObject("PartDesign::Body", "Body038")

# Sketch on XY plane
sketch17 = body39.newObject("Sketcher::SketchObject", "Sketch016")
sketch17.AttachmentSupport = (doc.getObject("XY_Plane038"), [""])
sketch17.MapMode = "FlatFace"
add_polygon(sketch17, [(-1.5, 1.5), (-1.5, -1.5), (1.5, -1.5), (1.5, 1.5)])  # lines 0-3
sketch17.addConstraint([
    Sketcher.Constraint("Vertical", 0),
    Sketcher.Constraint("Horizontal", 1),
    Sketcher.Constraint("Vertical", 2),
    Sketcher.Constraint("Horizontal", 3),
    Sketcher.Constraint("Symmetric", 0, 2, 2, 2, -1, 1),
    Sketcher.Constraint("Equal", 3, 0),
    Sketcher.Constraint("DistanceX", 1, 1, 1, 2, Q("3 mm")),
])
pad17 = body39.newObject("PartDesign::Pad", "Pad016")
pad17.Profile = sketch17
pad17.Length = 20
body40 = doc.addObject("PartDesign::Body", "Body039")

# Sketch on XY plane
sketch18 = body40.newObject("Sketcher::SketchObject", "Sketch017")
sketch18.AttachmentSupport = (doc.getObject("XY_Plane039"), [""])
sketch18.MapMode = "FlatFace"
sketch18.addGeometry(Part.Circle(V(0, -1.5, 0), V(0, 0, 1), 1.5), False)
sketch18.addConstraint([
    Sketcher.Constraint("PointOnObject", 0, 3, -2),
    Sketcher.Constraint("Diameter", 0, Q("3 mm")),
    Sketcher.Constraint("DistanceY", 0, 3, -1, 1, Q("1.5 mm")),
])
pad18 = body40.newObject("PartDesign::Pad", "Pad017")
pad18.Profile = sketch18
pad18.Length = 20
body41 = doc.addObject("PartDesign::Body", "Body040")

# Sketch on XY plane
sketch19 = body41.newObject("Sketcher::SketchObject", "Sketch018")
sketch19.AttachmentSupport = (doc.getObject("XY_Plane040"), [""])
sketch19.MapMode = "FlatFace"
sketch19.addGeometry(Part.Circle(V(0, 1.5, 0), V(0, 0, 1), 1.5), False)
sketch19.addConstraint([
    Sketcher.Constraint("PointOnObject", 0, 3, -2),
    Sketcher.Constraint("Diameter", 0, Q("3 mm")),
    Sketcher.Constraint("DistanceY", -1, 1, 0, 3, Q("1.5 mm")),
])
pad19 = body41.newObject("PartDesign::Pad", "Pad018")
pad19.Profile = sketch19
pad19.Length = 20
doc.recompute()

boolean36 = body41.newObject("PartDesign::Boolean", "Boolean035")
boolean36.Type = "Fuse"
boolean36.addObjects([body39])
doc.recompute()

boolean37 = body41.newObject("PartDesign::Boolean", "Boolean036")
boolean37.Type = "Fuse"
boolean37.addObjects([body40])
body42 = doc.addObject("PartDesign::Body", "Body041")
doc.recompute()

body41.Placement = App.Placement(V(0, 0, 0), App.Rotation(V(1, 0, 0), 90))
boolean38 = body42.newObject("PartDesign::Boolean", "Boolean037")
boolean38.Type = "Fuse"
boolean38.addObjects([body41])
body43 = doc.addObject("PartDesign::Body", "Body042")
doc.recompute()

body42.Placement = App.Placement(V(-10, -40.398181, 5), App.Rotation(V(0, 0, 1), 90))
boolean39 = body43.newObject("PartDesign::Boolean", "Boolean038")
boolean39.Type = "Fuse"
boolean39.addObjects([body42])
body44 = doc.addObject("PartDesign::Body", "Body043")

# Sketch on XY plane
sketch20 = body44.newObject("Sketcher::SketchObject", "Sketch019")
sketch20.AttachmentSupport = (doc.getObject("XY_Plane043"), [""])
sketch20.MapMode = "FlatFace"
sketch20.addGeometry(Part.Circle(V(0, 0, 0), V(0, 0, 1), 2.7), False)
sketch20.addConstraint([
    Sketcher.Constraint("Coincident", 0, 3, -1, 1),
    Sketcher.Constraint("Diameter", 0, Q("5.4 mm")),
])
pad20 = body44.newObject("PartDesign::Pad", "Pad019")
pad20.Profile = sketch20
pad20.Length = 60
body45 = doc.addObject("PartDesign::Body", "Body044")
doc.recompute()

body44.Placement = App.Placement(V(0, 0, 0), App.Rotation(V(1, 0, 0), 270))
boolean40 = body45.newObject("PartDesign::Boolean", "Boolean039")
boolean40.Type = "Fuse"
boolean40.addObjects([body44])
body46 = doc.addObject("PartDesign::Body", "Body045")
doc.recompute()

body45.Placement = App.Placement(V(41.144225, -25, 5), App.Rotation(V(0, 0, 1), 0))
boolean41 = body46.newObject("PartDesign::Boolean", "Boolean040")
boolean41.Type = "Fuse"
boolean41.addObjects([body45])
body47 = doc.addObject("PartDesign::Body", "Body046")

# Sketch on XY plane
sketch21 = body47.newObject("Sketcher::SketchObject", "Sketch020")
sketch21.AttachmentSupport = (doc.getObject("XY_Plane046"), [""])
sketch21.MapMode = "FlatFace"
sketch21.addGeometry(Part.Circle(V(0, 0, 0), V(0, 0, 1), 2.7), False)
sketch21.addConstraint([
    Sketcher.Constraint("Coincident", 0, 3, -1, 1),
    Sketcher.Constraint("Diameter", 0, Q("5.4 mm")),
])
pad21 = body47.newObject("PartDesign::Pad", "Pad020")
pad21.Profile = sketch21
pad21.Length = 60
body48 = doc.addObject("PartDesign::Body", "Body047")
doc.recompute()

body47.Placement = App.Placement(V(0, 0, 0), App.Rotation(V(1, 0, 0), 270))
boolean42 = body48.newObject("PartDesign::Boolean", "Boolean041")
boolean42.Type = "Fuse"
boolean42.addObjects([body47])
body49 = doc.addObject("PartDesign::Body", "Body048")
doc.recompute()

body48.Placement = App.Placement(V(-41.144225, -25, 5), App.Rotation(V(0, 0, 1), 0))
boolean43 = body49.newObject("PartDesign::Boolean", "Boolean042")
boolean43.Type = "Fuse"
boolean43.addObjects([body48])
body50 = doc.addObject("PartDesign::Body", "Body049")

# Sketch on XY plane
sketch22 = body50.newObject("Sketcher::SketchObject", "Sketch021")
sketch22.AttachmentSupport = (doc.getObject("XY_Plane049"), [""])
sketch22.MapMode = "FlatFace"
sketch22.addGeometry([
    Part.ArcOfCircle(Part.Circle(V(0, 0.000001, 0), V(0, 0, 1), 25.150001), math.radians(-168.532785), math.radians(-11.467215)),  # 0
    Part.LineSegment(V(-24.647972, -5, 0), V(-48.75, -5, 0)),  # 1
    Part.LineSegment(V(-48.75, -5, 0), V(-48.75, -15, 0)),  # 2
    Part.LineSegment(V(-48.75, -15, 0), V(-31.788717, -15, 0)),  # 3
    Part.ArcOfCircle(Part.Circle(V(0.000002, 0.000003, 0), V(0, 0, 1), 35.150003), math.radians(-154.738987), math.radians(-98.177923)),  # 4
    Part.LineSegment(V(-5, -34.792564, 0), V(-5, -44.392564, 0)),  # 5
    Part.LineSegment(V(-5, -44.392564, 0), V(5, -44.392564, 0)),  # 6
    Part.LineSegment(V(5, -44.392564, 0), V(5, -34.792564, 0)),  # 7
    Part.ArcOfCircle(Part.Circle(V(-0.000002, 0.000003, 0), V(0, 0, 1), 35.150003), math.radians(-81.822077), math.radians(-25.261013)),  # 8
    Part.LineSegment(V(31.788717, -15, 0), V(48.75, -15, 0)),  # 9
    Part.LineSegment(V(48.75, -15, 0), V(48.75, -5, 0)),  # 10
    Part.LineSegment(V(48.75, -5, 0), V(24.647972, -5, 0)),  # 11
], False)
sketch22.addConstraint([
    Sketcher.Constraint("Coincident", 0, 1, 1, 1),
    Sketcher.Constraint("Coincident", 1, 2, 2, 1),
    Sketcher.Constraint("Coincident", 2, 2, 3, 1),
    Sketcher.Constraint("Coincident", 3, 2, 4, 1),
    Sketcher.Constraint("Coincident", 4, 2, 5, 1),
    Sketcher.Constraint("Coincident", 5, 2, 6, 1),
    Sketcher.Constraint("Coincident", 6, 2, 7, 1),
    Sketcher.Constraint("Coincident", 7, 2, 8, 1),
    Sketcher.Constraint("Coincident", 8, 2, 9, 1),
    Sketcher.Constraint("Coincident", 9, 2, 10, 1),
    Sketcher.Constraint("Coincident", 10, 2, 11, 1),
    Sketcher.Constraint("Coincident", 11, 2, 0, 2),
    Sketcher.Constraint("Horizontal", 1),
    Sketcher.Constraint("Vertical", 2),
    Sketcher.Constraint("Horizontal", 3),
    Sketcher.Constraint("Vertical", 5),
    Sketcher.Constraint("Horizontal", 6),
    Sketcher.Constraint("Vertical", 7),
    Sketcher.Constraint("Horizontal", 9),
    Sketcher.Constraint("Vertical", 10),
    Sketcher.Constraint("Horizontal", 11),
    Sketcher.Constraint("Coincident", 0, 3, -1, 1),
    Sketcher.Constraint("Coincident", 4, 3, -1, 1),
    Sketcher.Constraint("Coincident", 8, 3, -1, 1),
    Sketcher.Constraint("Equal", 4, 8),
    Sketcher.Constraint("Symmetric", 2, 2, 9, 2, -2),
    Sketcher.Constraint("Horizontal", 4, 2, 7, 2),
    Sketcher.Constraint("Horizontal", 1, 2, 10, 2),
    Sketcher.Constraint("Equal", 6, 2),
    Sketcher.Constraint("DistanceX", 6, 1, 6, 2, Q("10 mm")),
    Sketcher.Constraint("Radius", 0, Q("25.150001 mm")),
    Sketcher.Constraint("DistanceY", 5, 2, 5, 1, Q("9.6 mm")),
    Sketcher.Constraint("DistanceY", 0, 1, -1, 1, Q("5 mm")),
    Sketcher.Constraint("DistanceX", 1, 2, -1, 1, Q("48.75 mm")),
    Sketcher.Constraint("Radius", 4, Q("35.150003 mm")),
])
pad22 = body50.newObject("PartDesign::Pad", "Pad021")
pad22.Profile = sketch22
pad22.Length = 10
doc.recompute()

boolean44 = body50.newObject("PartDesign::Boolean", "Boolean043")
boolean44.Type = "Cut"
boolean44.addObjects([body49])
doc.recompute()

boolean45 = body50.newObject("PartDesign::Boolean", "Boolean044")
boolean45.Type = "Cut"
boolean45.addObjects([body46])
doc.recompute()

boolean46 = body50.newObject("PartDesign::Boolean", "Boolean045")
boolean46.Type = "Cut"
boolean46.addObjects([body43])

doc.recompute()
